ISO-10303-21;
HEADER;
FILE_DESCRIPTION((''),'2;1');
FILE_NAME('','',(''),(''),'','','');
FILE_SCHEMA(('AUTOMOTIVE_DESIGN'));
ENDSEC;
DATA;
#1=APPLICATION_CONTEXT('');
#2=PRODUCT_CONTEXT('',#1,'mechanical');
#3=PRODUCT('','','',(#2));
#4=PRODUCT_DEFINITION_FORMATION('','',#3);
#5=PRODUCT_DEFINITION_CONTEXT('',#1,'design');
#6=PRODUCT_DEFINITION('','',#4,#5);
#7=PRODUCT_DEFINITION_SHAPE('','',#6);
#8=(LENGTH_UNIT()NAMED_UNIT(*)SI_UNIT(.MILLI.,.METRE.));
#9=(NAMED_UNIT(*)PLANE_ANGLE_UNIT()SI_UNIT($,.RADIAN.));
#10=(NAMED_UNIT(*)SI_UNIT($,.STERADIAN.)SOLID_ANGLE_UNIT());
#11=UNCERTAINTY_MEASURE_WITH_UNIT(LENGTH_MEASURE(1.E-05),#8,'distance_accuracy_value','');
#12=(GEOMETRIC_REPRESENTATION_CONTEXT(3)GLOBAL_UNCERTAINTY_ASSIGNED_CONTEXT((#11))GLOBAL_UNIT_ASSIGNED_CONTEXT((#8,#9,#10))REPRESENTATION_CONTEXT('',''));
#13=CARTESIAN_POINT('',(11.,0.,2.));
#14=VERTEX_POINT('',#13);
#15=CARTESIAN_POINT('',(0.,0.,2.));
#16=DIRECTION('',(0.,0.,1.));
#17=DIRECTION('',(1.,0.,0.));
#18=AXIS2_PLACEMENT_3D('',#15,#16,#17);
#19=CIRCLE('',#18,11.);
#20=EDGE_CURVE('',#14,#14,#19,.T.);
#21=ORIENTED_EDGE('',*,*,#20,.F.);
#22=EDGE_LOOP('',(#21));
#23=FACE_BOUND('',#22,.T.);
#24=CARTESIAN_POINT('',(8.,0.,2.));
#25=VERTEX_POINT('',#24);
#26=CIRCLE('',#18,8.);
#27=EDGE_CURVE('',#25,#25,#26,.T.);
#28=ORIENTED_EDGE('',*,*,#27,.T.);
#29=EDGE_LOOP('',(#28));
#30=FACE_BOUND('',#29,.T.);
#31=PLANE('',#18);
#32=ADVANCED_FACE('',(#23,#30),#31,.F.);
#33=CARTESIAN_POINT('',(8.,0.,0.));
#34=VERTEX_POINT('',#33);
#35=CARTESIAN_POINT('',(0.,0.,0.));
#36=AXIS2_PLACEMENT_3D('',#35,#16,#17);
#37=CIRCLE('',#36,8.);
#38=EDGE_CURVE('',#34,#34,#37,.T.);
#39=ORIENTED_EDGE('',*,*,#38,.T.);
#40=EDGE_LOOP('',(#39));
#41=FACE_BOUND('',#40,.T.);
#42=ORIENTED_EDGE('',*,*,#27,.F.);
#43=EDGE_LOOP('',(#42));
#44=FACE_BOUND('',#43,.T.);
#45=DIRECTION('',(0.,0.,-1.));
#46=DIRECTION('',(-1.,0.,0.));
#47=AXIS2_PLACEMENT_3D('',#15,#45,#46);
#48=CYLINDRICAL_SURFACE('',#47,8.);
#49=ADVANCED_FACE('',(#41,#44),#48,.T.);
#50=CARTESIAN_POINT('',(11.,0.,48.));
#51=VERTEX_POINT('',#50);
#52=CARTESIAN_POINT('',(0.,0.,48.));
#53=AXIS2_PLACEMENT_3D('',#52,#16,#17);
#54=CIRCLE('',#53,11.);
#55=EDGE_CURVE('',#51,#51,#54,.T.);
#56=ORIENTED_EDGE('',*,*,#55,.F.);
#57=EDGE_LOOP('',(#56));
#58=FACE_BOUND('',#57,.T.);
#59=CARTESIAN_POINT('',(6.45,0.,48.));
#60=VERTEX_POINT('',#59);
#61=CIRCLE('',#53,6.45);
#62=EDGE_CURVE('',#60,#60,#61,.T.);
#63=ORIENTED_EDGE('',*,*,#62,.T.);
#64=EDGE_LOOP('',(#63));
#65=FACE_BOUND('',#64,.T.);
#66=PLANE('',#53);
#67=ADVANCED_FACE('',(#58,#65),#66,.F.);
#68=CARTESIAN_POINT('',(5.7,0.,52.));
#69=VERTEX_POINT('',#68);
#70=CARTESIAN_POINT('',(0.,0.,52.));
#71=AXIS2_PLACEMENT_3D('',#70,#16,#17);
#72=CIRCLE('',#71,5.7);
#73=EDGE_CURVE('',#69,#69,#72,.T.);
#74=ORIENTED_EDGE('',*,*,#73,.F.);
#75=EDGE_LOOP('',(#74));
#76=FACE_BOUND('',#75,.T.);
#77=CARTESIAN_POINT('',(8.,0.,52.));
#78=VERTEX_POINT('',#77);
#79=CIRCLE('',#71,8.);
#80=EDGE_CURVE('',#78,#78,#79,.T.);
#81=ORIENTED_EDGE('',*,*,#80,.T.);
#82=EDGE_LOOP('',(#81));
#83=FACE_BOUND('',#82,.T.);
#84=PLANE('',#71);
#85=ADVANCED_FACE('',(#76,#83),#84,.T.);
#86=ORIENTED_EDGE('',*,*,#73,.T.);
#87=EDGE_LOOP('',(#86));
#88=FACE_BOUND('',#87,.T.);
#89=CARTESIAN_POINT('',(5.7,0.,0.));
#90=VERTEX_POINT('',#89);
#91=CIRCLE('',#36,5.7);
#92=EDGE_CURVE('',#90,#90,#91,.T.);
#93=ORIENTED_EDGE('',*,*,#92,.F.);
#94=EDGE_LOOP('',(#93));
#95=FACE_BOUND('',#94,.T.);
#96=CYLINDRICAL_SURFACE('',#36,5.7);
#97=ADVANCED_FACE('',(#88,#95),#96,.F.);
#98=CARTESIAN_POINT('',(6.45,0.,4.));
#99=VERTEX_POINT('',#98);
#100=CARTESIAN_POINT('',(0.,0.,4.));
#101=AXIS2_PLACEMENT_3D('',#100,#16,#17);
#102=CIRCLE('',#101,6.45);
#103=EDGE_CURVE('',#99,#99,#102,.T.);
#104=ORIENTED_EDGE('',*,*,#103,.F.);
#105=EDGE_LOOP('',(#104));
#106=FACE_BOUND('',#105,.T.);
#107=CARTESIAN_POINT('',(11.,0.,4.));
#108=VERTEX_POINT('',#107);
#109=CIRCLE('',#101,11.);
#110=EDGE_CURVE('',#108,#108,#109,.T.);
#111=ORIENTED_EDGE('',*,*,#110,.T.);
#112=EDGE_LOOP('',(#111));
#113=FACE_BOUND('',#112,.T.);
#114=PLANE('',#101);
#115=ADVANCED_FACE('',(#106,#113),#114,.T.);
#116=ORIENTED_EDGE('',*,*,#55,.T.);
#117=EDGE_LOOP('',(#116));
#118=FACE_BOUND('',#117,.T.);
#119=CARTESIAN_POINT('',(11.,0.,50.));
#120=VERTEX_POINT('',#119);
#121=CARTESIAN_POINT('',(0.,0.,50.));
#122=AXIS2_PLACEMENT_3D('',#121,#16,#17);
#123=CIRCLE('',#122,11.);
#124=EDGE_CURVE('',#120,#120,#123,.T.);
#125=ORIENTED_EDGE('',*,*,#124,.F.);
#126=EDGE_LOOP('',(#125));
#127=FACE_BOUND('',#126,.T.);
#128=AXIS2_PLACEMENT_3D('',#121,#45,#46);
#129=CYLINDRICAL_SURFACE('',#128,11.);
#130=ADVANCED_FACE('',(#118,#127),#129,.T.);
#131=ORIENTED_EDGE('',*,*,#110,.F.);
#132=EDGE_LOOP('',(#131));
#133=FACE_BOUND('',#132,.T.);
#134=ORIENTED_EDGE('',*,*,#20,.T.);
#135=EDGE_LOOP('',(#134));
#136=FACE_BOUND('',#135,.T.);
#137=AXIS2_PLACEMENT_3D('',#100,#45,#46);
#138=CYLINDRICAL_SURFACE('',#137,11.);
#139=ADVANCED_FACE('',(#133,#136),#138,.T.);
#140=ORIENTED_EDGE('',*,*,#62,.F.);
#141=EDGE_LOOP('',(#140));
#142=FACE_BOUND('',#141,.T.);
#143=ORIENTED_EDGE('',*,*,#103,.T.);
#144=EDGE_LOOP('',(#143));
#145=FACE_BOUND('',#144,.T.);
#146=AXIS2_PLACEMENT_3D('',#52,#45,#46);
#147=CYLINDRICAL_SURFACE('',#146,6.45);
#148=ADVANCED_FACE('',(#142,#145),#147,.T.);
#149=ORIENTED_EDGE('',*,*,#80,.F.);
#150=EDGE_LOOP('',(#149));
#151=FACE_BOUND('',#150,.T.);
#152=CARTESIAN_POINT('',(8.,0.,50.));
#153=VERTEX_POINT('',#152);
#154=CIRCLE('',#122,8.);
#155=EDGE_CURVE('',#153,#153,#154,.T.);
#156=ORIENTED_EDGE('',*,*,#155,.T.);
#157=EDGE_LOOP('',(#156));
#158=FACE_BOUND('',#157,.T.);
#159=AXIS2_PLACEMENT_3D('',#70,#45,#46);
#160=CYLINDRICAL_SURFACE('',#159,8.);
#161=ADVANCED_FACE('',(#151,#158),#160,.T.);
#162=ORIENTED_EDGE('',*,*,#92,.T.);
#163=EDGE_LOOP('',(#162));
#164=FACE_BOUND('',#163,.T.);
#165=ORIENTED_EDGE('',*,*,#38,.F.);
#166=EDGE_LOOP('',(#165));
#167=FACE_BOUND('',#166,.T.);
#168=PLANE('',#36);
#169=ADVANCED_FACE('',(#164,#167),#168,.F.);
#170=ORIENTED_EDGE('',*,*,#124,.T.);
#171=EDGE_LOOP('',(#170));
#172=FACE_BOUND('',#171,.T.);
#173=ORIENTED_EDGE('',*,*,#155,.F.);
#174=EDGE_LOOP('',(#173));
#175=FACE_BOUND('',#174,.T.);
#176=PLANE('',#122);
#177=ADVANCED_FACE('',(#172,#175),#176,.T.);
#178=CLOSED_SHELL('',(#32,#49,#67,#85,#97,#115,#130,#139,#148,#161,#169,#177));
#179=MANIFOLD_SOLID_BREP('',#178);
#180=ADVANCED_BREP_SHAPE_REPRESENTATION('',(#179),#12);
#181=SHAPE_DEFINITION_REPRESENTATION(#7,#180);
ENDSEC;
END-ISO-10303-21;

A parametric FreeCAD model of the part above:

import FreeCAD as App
import Part
import Sketcher

V = App.Vector

doc = App.newDocument("Part")
params = doc.addObject("Spreadsheet::Sheet", "Params")
for row, (alias, value) in enumerate([
    ("sketch1_diameter", "16 mm"),
    ("pad1_length", "2 mm"),
    ("sketch2_diameter", "22 mm"),
    ("pad2_length", "2 mm"),
    ("sketch3_diameter", "12.9 mm"),
    ("pad3_length", "44 mm"),
    ("sketch4_diameter", "22 mm"),
    ("pad4_length", "2 mm"),
    ("sketch5_diameter", "16 mm"),
    ("pad5_length", "2 mm"),
    ("sketch6_diameter", "11.4 mm"),
], start=1):
    params.set(f"A{row}", alias)
    params.set(f"B{row}", "=" + value)
    params.setAlias(f"B{row}", alias)

body = doc.addObject("PartDesign::Body", "Body")

sketch1 = body.newObject("Sketcher::SketchObject", "Sketch")
sketch1.AttachmentSupport = (doc.getObject("XY_Plane"), [""])
sketch1.MapMode = "FlatFace"
sketch1.addGeometry(Part.Circle(V(0, 0, 0), V(0, 0, 1), 8), False)
sketch1.addConstraint([
    Sketcher.Constraint("Coincident", 0, 3, -1, 1),
    Sketcher.Constraint("Diameter", 0, 16.0),
])
sketch1.setExpression("Constraints[1]", "Params.sketch1_diameter")
pad1 = body.newObject("PartDesign::Pad", "Pad")
pad1.Profile = sketch1
pad1.setExpression("Length", "Params.pad1_length")

sketch2 = body.newObject("Sketcher::SketchObject", "Sketch001")
sketch2.AttachmentSupport = (doc.getObject("XY_Plane"), [""])
sketch2.MapMode = "FlatFace"
sketch2.AttachmentOffset = App.Placement(V(0, 0, 2), App.Rotation())
sketch2.addGeometry(Part.Circle(V(0, 0, 0), V(0, 0, 1), 11), False)
sketch2.addConstraint([
    Sketcher.Constraint("Coincident", 0, 3, -1, 1),
    Sketcher.Constraint("Diameter", 0, 22.0),
])
sketch2.setExpression("Constraints[1]", "Params.sketch2_diameter")
pad2 = body.newObject("PartDesign::Pad", "Pad001")
pad2.Profile = sketch2
pad2.setExpression("Length", "Params.pad2_length")

sketch3 = body.newObject("Sketcher::SketchObject", "Sketch002")
sketch3.AttachmentSupport = (doc.getObject("XY_Plane"), [""])
sketch3.MapMode = "FlatFace"
sketch3.AttachmentOffset = App.Placement(V(0, 0, 4), App.Rotation())
sketch3.addGeometry(Part.Circle(V(0, 0, 0), V(0, 0, 1), 6.45), False)
sketch3.addConstraint([
    Sketcher.Constraint("Coincident", 0, 3, -1, 1),
    Sketcher.Constraint("Diameter", 0, 12.9),
])
sketch3.setExpression("Constraints[1]", "Params.sketch3_diameter")
pad3 = body.newObject("PartDesign::Pad", "Pad002")
pad3.Profile = sketch3
pad3.setExpression("Length", "Params.pad3_length")

sketch4 = body.newObject("Sketcher::SketchObject", "Sketch003")
sketch4.AttachmentSupport = (doc.getObject("XY_Plane"), [""])
sketch4.MapMode = "FlatFace"
sketch4.AttachmentOffset = App.Placement(V(0, 0, 48), App.Rotation())
sketch4.addGeometry(Part.Circle(V(0, 0, 0), V(0, 0, 1), 11), False)
sketch4.addConstraint([
    Sketcher.Constraint("Coincident", 0, 3, -1, 1),
    Sketcher.Constraint("Diameter", 0, 22.0),
])
sketch4.setExpression("Constraints[1]", "Params.sketch4_diameter")
pad4 = body.newObject("PartDesign::Pad", "Pad003")
pad4.Profile = sketch4
pad4.setExpression("Length", "Params.pad4_length")

sketch5 = body.newObject("Sketcher::SketchObject", "Sketch004")
sketch5.AttachmentSupport = (doc.getObject("XY_Plane"), [""])
sketch5.MapMode = "FlatFace"
sketch5.AttachmentOffset = App.Placement(V(0, 0, 50), App.Rotation())
sketch5.addGeometry(Part.Circle(V(0, 0, 0), V(0, 0, 1), 8), False)
sketch5.addConstraint([
    Sketcher.Constraint("Coincident", 0, 3, -1, 1),
    Sketcher.Constraint("Diameter", 0, 16.0),
])
sketch5.setExpression("Constraints[1]", "Params.sketch5_diameter")
pad5 = body.newObject("PartDesign::Pad", "Pad004")
pad5.Profile = sketch5
pad5.setExpression("Length", "Params.pad5_length")

sketch6 = body.newObject("Sketcher::SketchObject", "Sketch005")
sketch6.AttachmentSupport = (doc.getObject("XY_Plane"), [""])
sketch6.MapMode = "FlatFace"
sketch6.AttachmentOffset = App.Placement(V(0, 0, 52), App.Rotation())
sketch6.addGeometry(Part.Circle(V(0, 0, 0), V(0, 0, 1), 5.7), False)
sketch6.addConstraint([
    Sketcher.Constraint("Coincident", 0, 3, -1, 1),
    Sketcher.Constraint("Diameter", 0, 11.4),
])
sketch6.setExpression("Constraints[1]", "Params.sketch6_diameter")
pocket1 = body.newObject("PartDesign::Pocket", "Pocket")
pocket1.Profile = sketch6
pocket1.Type = "ThroughAll"

doc.recompute()
